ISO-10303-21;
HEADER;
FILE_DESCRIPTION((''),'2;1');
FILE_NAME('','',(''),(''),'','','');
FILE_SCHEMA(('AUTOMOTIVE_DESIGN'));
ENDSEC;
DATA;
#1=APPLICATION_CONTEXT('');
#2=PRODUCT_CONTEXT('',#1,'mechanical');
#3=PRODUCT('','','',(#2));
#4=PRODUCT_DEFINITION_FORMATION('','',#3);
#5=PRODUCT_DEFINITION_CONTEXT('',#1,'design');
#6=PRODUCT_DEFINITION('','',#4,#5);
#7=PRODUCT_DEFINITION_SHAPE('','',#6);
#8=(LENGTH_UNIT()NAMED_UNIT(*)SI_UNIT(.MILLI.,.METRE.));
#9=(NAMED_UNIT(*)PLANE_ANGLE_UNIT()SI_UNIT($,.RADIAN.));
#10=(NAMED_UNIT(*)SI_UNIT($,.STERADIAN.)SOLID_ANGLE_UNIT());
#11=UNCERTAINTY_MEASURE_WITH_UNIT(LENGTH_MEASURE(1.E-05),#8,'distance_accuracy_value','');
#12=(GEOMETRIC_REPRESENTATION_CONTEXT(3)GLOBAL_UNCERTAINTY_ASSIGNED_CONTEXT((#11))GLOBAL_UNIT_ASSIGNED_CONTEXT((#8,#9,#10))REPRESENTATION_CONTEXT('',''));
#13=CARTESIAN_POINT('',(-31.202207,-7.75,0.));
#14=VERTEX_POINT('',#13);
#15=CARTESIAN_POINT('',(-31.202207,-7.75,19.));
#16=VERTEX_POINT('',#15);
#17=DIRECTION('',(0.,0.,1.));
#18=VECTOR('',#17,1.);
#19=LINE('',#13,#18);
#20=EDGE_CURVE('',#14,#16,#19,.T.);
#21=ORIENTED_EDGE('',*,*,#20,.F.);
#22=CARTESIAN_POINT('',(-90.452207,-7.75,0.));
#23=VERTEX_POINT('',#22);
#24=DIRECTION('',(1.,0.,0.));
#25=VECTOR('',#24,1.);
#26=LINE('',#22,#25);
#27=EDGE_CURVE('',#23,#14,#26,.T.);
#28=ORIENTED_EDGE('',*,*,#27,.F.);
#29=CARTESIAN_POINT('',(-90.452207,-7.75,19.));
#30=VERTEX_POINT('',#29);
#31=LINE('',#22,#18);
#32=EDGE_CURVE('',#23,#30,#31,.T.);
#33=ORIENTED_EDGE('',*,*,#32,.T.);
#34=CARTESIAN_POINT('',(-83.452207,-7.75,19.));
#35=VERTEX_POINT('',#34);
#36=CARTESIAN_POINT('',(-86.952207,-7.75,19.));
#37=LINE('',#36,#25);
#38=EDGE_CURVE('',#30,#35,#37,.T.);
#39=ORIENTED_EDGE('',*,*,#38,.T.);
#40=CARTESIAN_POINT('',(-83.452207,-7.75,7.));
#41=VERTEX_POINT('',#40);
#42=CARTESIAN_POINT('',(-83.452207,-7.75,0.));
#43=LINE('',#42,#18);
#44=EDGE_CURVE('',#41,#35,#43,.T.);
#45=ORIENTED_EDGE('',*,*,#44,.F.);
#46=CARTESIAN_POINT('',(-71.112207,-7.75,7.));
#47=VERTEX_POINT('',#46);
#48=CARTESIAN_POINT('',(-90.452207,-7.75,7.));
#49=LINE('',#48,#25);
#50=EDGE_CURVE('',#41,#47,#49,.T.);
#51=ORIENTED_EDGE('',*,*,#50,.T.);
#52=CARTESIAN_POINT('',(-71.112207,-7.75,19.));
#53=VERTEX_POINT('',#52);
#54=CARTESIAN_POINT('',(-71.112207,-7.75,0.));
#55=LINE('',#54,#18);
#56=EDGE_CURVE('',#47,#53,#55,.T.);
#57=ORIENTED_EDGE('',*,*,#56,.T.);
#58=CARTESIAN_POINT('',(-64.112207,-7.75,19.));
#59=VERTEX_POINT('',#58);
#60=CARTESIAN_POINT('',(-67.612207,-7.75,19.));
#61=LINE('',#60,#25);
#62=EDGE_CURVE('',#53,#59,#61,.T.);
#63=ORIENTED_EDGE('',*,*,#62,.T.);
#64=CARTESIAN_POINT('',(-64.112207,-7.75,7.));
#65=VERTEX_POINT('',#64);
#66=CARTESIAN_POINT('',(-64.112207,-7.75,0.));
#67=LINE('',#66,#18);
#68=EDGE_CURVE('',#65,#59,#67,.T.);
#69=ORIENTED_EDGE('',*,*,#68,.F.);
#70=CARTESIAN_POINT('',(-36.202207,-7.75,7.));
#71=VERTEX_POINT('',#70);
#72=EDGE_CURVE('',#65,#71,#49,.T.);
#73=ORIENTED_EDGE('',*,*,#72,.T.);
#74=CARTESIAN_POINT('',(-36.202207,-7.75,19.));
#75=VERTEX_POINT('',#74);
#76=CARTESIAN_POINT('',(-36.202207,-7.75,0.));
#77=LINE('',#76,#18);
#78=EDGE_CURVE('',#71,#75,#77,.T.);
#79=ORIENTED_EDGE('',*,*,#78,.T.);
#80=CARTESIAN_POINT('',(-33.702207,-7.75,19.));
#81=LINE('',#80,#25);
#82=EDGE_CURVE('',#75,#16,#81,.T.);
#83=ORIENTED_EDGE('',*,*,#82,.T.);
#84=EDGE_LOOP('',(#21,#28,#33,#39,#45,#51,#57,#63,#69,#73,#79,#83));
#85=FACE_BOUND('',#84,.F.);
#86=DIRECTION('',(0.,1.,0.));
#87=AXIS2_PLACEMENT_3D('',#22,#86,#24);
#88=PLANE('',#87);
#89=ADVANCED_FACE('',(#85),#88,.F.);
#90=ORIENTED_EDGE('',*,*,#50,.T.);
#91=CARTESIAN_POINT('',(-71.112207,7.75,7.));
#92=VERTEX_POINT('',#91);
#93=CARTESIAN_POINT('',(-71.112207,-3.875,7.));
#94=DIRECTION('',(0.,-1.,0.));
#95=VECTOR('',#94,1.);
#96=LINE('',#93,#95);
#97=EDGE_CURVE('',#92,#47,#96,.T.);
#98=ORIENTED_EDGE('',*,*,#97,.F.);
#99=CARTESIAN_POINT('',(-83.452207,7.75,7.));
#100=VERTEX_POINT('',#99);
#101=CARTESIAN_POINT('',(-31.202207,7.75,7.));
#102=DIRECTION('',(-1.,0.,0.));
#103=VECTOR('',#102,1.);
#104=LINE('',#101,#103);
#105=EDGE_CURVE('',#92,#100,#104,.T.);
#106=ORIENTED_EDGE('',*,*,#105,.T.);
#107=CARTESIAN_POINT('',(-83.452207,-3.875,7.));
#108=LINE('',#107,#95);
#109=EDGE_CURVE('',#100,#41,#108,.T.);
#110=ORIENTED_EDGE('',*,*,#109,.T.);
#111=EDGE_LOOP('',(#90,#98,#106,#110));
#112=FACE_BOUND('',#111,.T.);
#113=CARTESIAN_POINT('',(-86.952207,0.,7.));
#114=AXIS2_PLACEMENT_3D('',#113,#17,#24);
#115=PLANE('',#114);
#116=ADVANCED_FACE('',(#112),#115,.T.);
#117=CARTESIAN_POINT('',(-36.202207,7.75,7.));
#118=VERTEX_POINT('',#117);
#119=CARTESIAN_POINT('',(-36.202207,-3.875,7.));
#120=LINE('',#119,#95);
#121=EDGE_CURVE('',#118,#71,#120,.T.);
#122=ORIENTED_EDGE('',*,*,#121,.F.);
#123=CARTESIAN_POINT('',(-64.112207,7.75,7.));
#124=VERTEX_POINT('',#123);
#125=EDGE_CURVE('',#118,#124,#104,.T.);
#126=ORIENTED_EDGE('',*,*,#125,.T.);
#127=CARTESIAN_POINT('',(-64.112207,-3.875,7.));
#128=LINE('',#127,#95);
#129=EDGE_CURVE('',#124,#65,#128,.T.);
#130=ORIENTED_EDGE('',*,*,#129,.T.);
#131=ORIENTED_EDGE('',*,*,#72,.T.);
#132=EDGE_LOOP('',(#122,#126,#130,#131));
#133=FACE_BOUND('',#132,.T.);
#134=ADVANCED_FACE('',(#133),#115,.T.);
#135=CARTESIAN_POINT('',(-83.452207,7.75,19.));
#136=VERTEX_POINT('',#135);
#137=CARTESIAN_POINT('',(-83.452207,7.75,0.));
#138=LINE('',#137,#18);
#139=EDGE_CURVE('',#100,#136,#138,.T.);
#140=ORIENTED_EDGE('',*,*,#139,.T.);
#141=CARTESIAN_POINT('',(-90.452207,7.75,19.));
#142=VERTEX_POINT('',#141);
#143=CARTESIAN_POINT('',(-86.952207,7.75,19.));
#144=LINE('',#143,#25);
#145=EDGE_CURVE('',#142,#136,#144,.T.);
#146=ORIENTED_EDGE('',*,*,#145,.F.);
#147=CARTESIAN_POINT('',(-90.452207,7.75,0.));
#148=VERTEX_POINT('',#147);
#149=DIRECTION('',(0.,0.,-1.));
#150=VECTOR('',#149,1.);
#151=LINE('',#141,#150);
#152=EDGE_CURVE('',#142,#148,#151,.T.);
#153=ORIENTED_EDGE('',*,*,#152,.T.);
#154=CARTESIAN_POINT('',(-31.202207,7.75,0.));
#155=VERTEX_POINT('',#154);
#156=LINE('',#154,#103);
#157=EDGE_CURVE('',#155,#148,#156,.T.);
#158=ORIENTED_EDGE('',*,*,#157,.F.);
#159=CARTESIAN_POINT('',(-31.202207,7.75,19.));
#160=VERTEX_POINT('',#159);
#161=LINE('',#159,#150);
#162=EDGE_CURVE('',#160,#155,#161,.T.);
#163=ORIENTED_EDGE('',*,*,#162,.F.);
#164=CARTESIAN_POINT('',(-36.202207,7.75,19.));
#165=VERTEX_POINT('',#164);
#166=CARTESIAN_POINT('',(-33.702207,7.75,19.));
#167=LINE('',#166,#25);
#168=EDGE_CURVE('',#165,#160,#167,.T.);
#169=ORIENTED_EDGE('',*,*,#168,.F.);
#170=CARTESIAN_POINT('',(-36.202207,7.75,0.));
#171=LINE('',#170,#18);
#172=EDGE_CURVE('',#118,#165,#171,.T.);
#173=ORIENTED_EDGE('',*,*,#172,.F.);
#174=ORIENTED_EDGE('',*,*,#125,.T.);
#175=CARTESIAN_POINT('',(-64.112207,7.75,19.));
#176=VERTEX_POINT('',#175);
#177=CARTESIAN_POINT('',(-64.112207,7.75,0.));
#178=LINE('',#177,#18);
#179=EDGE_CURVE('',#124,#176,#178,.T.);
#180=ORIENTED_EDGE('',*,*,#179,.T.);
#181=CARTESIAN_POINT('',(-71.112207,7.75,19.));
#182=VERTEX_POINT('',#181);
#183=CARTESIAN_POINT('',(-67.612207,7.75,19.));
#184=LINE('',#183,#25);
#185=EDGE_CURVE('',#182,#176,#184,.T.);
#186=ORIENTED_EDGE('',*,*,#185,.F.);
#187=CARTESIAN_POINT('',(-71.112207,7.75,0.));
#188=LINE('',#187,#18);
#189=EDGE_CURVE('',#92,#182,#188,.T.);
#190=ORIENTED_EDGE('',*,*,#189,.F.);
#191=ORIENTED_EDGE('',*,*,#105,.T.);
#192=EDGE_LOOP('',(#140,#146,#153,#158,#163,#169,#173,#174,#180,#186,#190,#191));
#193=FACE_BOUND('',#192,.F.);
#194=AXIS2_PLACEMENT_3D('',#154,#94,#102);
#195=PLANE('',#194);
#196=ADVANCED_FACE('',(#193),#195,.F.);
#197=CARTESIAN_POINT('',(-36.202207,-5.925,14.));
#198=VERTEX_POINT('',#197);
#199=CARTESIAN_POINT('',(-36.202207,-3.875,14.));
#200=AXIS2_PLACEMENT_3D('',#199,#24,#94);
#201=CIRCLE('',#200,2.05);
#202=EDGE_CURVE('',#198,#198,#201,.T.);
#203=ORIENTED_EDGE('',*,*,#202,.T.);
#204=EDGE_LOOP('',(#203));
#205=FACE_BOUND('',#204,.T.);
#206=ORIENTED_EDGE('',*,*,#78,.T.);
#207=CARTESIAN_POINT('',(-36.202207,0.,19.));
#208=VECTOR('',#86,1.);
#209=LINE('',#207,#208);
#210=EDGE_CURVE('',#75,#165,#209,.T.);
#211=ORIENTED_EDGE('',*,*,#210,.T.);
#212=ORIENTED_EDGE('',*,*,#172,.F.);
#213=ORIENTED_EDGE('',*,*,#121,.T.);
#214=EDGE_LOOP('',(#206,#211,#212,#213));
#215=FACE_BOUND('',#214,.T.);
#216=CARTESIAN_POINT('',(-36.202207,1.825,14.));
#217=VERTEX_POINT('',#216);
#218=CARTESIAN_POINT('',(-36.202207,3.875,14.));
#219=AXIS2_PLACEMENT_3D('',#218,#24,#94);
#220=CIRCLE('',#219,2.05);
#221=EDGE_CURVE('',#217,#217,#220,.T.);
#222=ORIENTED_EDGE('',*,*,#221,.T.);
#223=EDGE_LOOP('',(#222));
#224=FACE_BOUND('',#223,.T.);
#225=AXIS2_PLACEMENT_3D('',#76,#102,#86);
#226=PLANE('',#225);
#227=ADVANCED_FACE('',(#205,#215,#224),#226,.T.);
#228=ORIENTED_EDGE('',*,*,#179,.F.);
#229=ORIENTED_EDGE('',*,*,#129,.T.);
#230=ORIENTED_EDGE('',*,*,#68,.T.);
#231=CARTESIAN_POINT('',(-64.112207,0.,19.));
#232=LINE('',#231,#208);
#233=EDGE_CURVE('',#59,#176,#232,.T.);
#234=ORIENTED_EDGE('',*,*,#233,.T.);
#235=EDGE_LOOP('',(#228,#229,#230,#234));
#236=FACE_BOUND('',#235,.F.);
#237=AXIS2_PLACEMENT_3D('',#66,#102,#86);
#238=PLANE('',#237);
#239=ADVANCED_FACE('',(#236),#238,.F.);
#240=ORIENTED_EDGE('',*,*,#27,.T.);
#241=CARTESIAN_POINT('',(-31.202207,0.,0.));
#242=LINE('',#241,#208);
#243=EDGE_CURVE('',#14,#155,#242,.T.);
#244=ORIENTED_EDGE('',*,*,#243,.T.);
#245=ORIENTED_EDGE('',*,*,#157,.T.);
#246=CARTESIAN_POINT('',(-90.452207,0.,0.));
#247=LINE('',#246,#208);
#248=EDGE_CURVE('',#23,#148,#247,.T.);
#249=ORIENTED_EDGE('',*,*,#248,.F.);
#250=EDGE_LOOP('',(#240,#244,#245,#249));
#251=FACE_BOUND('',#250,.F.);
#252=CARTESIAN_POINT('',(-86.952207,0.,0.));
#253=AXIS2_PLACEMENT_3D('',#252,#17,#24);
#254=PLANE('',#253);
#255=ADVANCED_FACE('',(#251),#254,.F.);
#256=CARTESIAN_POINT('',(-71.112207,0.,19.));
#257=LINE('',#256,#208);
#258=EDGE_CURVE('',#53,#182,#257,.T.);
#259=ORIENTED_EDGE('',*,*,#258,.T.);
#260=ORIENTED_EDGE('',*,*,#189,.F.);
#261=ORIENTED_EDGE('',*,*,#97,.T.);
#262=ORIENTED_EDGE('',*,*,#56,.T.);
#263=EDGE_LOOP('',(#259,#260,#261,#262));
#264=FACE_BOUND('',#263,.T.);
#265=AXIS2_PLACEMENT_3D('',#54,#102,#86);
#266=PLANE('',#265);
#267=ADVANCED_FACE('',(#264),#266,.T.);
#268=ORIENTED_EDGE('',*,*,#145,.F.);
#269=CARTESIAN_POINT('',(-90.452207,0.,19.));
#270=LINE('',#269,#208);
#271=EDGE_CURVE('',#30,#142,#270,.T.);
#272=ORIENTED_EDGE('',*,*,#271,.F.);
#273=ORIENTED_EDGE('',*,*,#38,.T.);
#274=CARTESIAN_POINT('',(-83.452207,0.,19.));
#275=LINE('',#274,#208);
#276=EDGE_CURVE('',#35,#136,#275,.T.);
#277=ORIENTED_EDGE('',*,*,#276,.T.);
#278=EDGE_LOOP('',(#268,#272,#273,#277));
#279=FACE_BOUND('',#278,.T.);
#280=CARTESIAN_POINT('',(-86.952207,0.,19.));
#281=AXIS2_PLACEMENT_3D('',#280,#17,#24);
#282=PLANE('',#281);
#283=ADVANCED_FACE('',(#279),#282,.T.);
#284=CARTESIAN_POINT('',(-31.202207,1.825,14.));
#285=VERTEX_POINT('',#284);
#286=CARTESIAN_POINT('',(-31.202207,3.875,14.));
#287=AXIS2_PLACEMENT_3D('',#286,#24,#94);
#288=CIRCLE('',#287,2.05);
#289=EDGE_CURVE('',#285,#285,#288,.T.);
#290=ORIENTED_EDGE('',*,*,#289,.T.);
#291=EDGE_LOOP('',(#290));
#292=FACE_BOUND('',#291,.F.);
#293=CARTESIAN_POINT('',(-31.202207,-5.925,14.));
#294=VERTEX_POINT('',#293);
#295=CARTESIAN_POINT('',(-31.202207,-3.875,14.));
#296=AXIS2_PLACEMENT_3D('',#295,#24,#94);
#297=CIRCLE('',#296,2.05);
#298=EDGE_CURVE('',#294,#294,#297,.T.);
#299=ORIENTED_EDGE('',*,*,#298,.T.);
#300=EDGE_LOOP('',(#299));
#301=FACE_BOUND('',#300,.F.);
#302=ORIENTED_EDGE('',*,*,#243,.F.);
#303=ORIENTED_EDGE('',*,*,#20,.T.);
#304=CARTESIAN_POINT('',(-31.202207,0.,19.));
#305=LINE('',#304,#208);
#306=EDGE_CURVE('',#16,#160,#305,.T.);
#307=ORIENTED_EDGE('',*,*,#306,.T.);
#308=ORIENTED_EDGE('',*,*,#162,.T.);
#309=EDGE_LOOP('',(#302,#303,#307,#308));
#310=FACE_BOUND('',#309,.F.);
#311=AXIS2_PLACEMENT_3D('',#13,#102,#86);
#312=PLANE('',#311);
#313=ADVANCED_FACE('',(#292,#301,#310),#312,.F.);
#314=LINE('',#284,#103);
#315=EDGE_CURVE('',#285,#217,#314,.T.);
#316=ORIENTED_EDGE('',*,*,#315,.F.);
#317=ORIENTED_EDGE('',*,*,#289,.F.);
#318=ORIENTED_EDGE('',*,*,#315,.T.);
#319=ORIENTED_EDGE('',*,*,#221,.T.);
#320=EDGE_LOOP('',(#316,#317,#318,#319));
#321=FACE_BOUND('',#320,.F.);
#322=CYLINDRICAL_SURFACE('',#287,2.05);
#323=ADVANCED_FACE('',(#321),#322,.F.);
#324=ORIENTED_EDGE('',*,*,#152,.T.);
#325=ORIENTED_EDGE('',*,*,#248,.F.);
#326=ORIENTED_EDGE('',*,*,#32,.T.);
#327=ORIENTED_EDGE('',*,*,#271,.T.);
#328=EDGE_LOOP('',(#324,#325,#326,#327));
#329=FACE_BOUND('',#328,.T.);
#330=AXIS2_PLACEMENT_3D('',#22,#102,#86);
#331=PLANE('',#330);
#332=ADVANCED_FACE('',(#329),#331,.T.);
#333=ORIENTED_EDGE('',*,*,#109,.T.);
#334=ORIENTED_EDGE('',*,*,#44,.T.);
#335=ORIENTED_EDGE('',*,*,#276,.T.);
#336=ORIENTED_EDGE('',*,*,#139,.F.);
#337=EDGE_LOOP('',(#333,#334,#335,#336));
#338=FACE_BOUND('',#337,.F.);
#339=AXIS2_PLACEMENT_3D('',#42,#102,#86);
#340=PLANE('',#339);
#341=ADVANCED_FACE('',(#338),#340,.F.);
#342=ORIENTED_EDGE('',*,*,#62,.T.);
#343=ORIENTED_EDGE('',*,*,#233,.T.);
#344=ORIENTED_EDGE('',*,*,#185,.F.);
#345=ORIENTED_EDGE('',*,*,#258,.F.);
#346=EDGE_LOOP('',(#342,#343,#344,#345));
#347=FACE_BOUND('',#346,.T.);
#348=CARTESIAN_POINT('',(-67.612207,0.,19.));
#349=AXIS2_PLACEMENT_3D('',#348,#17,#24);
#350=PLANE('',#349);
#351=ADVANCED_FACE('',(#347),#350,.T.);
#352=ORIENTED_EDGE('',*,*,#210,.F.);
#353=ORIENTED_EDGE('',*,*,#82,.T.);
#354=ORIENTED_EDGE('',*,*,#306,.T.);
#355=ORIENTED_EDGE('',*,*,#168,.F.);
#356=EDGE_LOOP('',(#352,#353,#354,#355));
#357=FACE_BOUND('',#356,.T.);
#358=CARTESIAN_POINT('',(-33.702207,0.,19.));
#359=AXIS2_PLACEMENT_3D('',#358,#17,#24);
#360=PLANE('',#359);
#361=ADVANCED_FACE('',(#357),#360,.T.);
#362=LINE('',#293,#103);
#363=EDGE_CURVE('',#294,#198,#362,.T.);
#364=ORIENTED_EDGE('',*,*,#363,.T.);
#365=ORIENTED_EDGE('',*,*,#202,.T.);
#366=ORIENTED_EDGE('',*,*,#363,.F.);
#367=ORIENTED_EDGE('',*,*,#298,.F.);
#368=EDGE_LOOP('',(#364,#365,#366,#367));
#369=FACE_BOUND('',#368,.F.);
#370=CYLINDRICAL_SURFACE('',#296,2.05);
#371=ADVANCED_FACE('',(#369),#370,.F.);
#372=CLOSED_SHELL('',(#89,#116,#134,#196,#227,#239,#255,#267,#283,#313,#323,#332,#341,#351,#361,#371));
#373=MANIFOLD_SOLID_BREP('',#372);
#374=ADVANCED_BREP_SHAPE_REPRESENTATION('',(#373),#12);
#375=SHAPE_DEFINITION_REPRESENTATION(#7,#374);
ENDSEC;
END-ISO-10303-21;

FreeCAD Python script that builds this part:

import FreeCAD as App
import Part
import Sketcher
Q = App.Units.Quantity

doc = App.newDocument("Part")
body = doc.addObject("PartDesign::Body", "Body")

sketch1 = body.newObject("Sketcher::SketchObject", "Sketch")
sketch1.AttachmentSupport = (doc.getObject("XY_Plane"), [""])
sketch1.MapMode = "FlatFace"
sketch1.addGeometry(Part.LineSegment(App.Vector(-90, 8, 0), App.Vector(-90, -8, 0)), False)
sketch1.addGeometry(Part.LineSegment(App.Vector(-90, -8, 0), App.Vector(-31, -8, 0)), False)
sketch1.addGeometry(Part.LineSegment(App.Vector(-31, -8, 0), App.Vector(-31, 8, 0)), False)
sketch1.addGeometry(Part.LineSegment(App.Vector(-31, 8, 0), App.Vector(-90, 8, 0)), False)
sketch1.addConstraint(Sketcher.Constraint("Coincident", 0, 2, 1, 1))
sketch1.addConstraint(Sketcher.Constraint("Coincident", 1, 2, 2, 1))
sketch1.addConstraint(Sketcher.Constraint("Coincident", 2, 2, 3, 1))
sketch1.addConstraint(Sketcher.Constraint("Coincident", 3, 2, 0, 1))
sketch1.addConstraint(Sketcher.Constraint("Vertical", 0))
sketch1.addConstraint(Sketcher.Constraint("Horizontal", 1))
sketch1.addConstraint(Sketcher.Constraint("Vertical", 2))
sketch1.addConstraint(Sketcher.Constraint("Horizontal", 3))
sketch1.addConstraint(Sketcher.Constraint("DistanceY", 0, 2, 0, 1, Q("15.5 mm")))
sketch1.addConstraint(Sketcher.Constraint("DistanceX", 1, 1, 1, 2, Q("59.25 mm")))
sketch1.addConstraint(Sketcher.Constraint("DistanceY", 0, 2, -1, 1, Q("7.75 mm")))
sketch1.addConstraint(Sketcher.Constraint("DistanceX", 0, 2, -1, 1, Q("90.452207 mm")))
pad1 = body.newObject("PartDesign::Pad", "Pad")
pad1.Profile = sketch1
pad1.Length = 7

sketch2 = body.newObject("Sketcher::SketchObject", "Sketch001")
sketch2.AttachmentSupport = (doc.getObject("XY_Plane"), [""])
sketch2.MapMode = "FlatFace"
sketch2.addGeometry(Part.LineSegment(App.Vector(-90.5, 7.8, 0), App.Vector(-90.5, -7.8, 0)), False)
sketch2.addGeometry(Part.LineSegment(App.Vector(-90.5, -7.8, 0), App.Vector(-83.5, -7.8, 0)), False)
sketch2.addGeometry(Part.LineSegment(App.Vector(-83.5, -7.8, 0), App.Vector(-83.5, 7.8, 0)), False)
sketch2.addGeometry(Part.LineSegment(App.Vector(-83.5, 7.8, 0), App.Vector(-90.5, 7.8, 0)), False)
sketch2.addGeometry(Part.LineSegment(App.Vector(-71.1, 7.8, 0), App.Vector(-71.1, -7.8, 0)), False)
sketch2.addGeometry(Part.LineSegment(App.Vector(-71.1, -7.8, 0), App.Vector(-64.1, -7.8, 0)), False)
sketch2.addGeometry(Part.LineSegment(App.Vector(-64.1, -7.8, 0), App.Vector(-64.1, 7.8, 0)), False)
sketch2.addGeometry(Part.LineSegment(App.Vector(-64.1, 7.8, 0), App.Vector(-71.1, 7.8, 0)), False)
sketch2.addGeometry(Part.LineSegment(App.Vector(-36.2, 7.8, 0), App.Vector(-36.2, -7.8, 0)), False)
sketch2.addGeometry(Part.LineSegment(App.Vector(-36.2, -7.8, 0), App.Vector(-31.2, -7.8, 0)), False)
sketch2.addGeometry(Part.LineSegment(App.Vector(-31.2, -7.8, 0), App.Vector(-31.2, 7.8, 0)), False)
sketch2.addGeometry(Part.LineSegment(App.Vector(-31.2, 7.8, 0), App.Vector(-36.2, 7.8, 0)), False)
sketch2.addConstraint(Sketcher.Constraint("Coincident", 0, 2, 1, 1))
sketch2.addConstraint(Sketcher.Constraint("Coincident", 1, 2, 2, 1))
sketch2.addConstraint(Sketcher.Constraint("Coincident", 2, 2, 3, 1))
sketch2.addConstraint(Sketcher.Constraint("Coincident", 3, 2, 0, 1))
sketch2.addConstraint(Sketcher.Constraint("Coincident", 4, 2, 5, 1))
sketch2.addConstraint(Sketcher.Constraint("Coincident", 5, 2, 6, 1))
sketch2.addConstraint(Sketcher.Constraint("Coincident", 6, 2, 7, 1))
sketch2.addConstraint(Sketcher.Constraint("Coincident", 7, 2, 4, 1))
sketch2.addConstraint(Sketcher.Constraint("Coincident", 8, 2, 9, 1))
sketch2.addConstraint(Sketcher.Constraint("Coincident", 9, 2, 10, 1))
sketch2.addConstraint(Sketcher.Constraint("Coincident", 10, 2, 11, 1))
sketch2.addConstraint(Sketcher.Constraint("Coincident", 11, 2, 8, 1))
sketch2.addConstraint(Sketcher.Constraint("Vertical", 0))
sketch2.addConstraint(Sketcher.Constraint("Horizontal", 1))
sketch2.addConstraint(Sketcher.Constraint("Vertical", 2))
sketch2.addConstraint(Sketcher.Constraint("Horizontal", 3))
sketch2.addConstraint(Sketcher.Constraint("Vertical", 4))
sketch2.addConstraint(Sketcher.Constraint("Horizontal", 5))
sketch2.addConstraint(Sketcher.Constraint("Vertical", 6))
sketch2.addConstraint(Sketcher.Constraint("Horizontal", 7))
sketch2.addConstraint(Sketcher.Constraint("Vertical", 8))
sketch2.addConstraint(Sketcher.Constraint("Horizontal", 9))
sketch2.addConstraint(Sketcher.Constraint("Vertical", 10))
sketch2.addConstraint(Sketcher.Constraint("Horizontal", 11))
sketch2.addConstraint(Sketcher.Constraint("Horizontal", 1, 2, 4, 2))
sketch2.addConstraint(Sketcher.Constraint("Horizontal", 3, 2, 6, 2))
sketch2.addConstraint(Sketcher.Constraint("Horizontal", 5, 2, 8, 2))
sketch2.addConstraint(Sketcher.Constraint("Horizontal", 7, 2, 10, 2))
sketch2.addConstraint(Sketcher.Constraint("Equal", 3, 5))
sketch2.addConstraint(Sketcher.Constraint("DistanceX", 1, 1, 1, 2, Q("7 mm")))
sketch2.addConstraint(Sketcher.Constraint("DistanceX", 9, 1, 9, 2, Q("5 mm")))
sketch2.addConstraint(Sketcher.Constraint("DistanceY", 0, 2, 0, 1, Q("15.5 mm")))
sketch2.addConstraint(Sketcher.Constraint("DistanceY", 0, 2, -1, 1, Q("7.75 mm")))
sketch2.addConstraint(Sketcher.Constraint("DistanceX", 1, 2, 4, 2, Q("12.34 mm")))
sketch2.addConstraint(Sketcher.Constraint("DistanceX", 5, 2, 8, 2, Q("27.91 mm")))
sketch2.addConstraint(Sketcher.Constraint("DistanceX", 0, 2, -1, 1, Q("90.452207 mm")))
pad2 = body.newObject("PartDesign::Pad", "Pad001")
pad2.Profile = sketch2
pad2.Length = 19

sketch3 = body.newObject("Sketcher::SketchObject", "Sketch002")
sketch3.AttachmentSupport = (doc.getObject("YZ_Plane"), [""])
sketch3.MapMode = "FlatFace"
sketch3.AttachmentOffset = App.Placement(App.Vector(0, 0, -31.202207), App.Rotation())
sketch3.addGeometry(Part.Circle(App.Vector(-3.9, 14, 0), App.Vector(0, 0, 1), 2), False)
sketch3.addGeometry(Part.Circle(App.Vector(3.9, 14, 0), App.Vector(0, 0, 1), 2), False)
sketch3.addConstraint(Sketcher.Constraint("Equal", 0, 1))
sketch3.addConstraint(Sketcher.Constraint("Symmetric", 0, 3, 1, 3, -2))
sketch3.addConstraint(Sketcher.Constraint("Diameter", 0, Q("4.1 mm")))
sketch3.addConstraint(Sketcher.Constraint("DistanceY", -1, 1, 0, 3, Q("14 mm")))
sketch3.addConstraint(Sketcher.Constraint("DistanceX", 0, 3, 1, 3, Q("7.75 mm")))
pocket1 = body.newObject("PartDesign::Pocket", "Pocket")
pocket1.Profile = sketch3
pocket1.Length = 25

doc.recompute()
